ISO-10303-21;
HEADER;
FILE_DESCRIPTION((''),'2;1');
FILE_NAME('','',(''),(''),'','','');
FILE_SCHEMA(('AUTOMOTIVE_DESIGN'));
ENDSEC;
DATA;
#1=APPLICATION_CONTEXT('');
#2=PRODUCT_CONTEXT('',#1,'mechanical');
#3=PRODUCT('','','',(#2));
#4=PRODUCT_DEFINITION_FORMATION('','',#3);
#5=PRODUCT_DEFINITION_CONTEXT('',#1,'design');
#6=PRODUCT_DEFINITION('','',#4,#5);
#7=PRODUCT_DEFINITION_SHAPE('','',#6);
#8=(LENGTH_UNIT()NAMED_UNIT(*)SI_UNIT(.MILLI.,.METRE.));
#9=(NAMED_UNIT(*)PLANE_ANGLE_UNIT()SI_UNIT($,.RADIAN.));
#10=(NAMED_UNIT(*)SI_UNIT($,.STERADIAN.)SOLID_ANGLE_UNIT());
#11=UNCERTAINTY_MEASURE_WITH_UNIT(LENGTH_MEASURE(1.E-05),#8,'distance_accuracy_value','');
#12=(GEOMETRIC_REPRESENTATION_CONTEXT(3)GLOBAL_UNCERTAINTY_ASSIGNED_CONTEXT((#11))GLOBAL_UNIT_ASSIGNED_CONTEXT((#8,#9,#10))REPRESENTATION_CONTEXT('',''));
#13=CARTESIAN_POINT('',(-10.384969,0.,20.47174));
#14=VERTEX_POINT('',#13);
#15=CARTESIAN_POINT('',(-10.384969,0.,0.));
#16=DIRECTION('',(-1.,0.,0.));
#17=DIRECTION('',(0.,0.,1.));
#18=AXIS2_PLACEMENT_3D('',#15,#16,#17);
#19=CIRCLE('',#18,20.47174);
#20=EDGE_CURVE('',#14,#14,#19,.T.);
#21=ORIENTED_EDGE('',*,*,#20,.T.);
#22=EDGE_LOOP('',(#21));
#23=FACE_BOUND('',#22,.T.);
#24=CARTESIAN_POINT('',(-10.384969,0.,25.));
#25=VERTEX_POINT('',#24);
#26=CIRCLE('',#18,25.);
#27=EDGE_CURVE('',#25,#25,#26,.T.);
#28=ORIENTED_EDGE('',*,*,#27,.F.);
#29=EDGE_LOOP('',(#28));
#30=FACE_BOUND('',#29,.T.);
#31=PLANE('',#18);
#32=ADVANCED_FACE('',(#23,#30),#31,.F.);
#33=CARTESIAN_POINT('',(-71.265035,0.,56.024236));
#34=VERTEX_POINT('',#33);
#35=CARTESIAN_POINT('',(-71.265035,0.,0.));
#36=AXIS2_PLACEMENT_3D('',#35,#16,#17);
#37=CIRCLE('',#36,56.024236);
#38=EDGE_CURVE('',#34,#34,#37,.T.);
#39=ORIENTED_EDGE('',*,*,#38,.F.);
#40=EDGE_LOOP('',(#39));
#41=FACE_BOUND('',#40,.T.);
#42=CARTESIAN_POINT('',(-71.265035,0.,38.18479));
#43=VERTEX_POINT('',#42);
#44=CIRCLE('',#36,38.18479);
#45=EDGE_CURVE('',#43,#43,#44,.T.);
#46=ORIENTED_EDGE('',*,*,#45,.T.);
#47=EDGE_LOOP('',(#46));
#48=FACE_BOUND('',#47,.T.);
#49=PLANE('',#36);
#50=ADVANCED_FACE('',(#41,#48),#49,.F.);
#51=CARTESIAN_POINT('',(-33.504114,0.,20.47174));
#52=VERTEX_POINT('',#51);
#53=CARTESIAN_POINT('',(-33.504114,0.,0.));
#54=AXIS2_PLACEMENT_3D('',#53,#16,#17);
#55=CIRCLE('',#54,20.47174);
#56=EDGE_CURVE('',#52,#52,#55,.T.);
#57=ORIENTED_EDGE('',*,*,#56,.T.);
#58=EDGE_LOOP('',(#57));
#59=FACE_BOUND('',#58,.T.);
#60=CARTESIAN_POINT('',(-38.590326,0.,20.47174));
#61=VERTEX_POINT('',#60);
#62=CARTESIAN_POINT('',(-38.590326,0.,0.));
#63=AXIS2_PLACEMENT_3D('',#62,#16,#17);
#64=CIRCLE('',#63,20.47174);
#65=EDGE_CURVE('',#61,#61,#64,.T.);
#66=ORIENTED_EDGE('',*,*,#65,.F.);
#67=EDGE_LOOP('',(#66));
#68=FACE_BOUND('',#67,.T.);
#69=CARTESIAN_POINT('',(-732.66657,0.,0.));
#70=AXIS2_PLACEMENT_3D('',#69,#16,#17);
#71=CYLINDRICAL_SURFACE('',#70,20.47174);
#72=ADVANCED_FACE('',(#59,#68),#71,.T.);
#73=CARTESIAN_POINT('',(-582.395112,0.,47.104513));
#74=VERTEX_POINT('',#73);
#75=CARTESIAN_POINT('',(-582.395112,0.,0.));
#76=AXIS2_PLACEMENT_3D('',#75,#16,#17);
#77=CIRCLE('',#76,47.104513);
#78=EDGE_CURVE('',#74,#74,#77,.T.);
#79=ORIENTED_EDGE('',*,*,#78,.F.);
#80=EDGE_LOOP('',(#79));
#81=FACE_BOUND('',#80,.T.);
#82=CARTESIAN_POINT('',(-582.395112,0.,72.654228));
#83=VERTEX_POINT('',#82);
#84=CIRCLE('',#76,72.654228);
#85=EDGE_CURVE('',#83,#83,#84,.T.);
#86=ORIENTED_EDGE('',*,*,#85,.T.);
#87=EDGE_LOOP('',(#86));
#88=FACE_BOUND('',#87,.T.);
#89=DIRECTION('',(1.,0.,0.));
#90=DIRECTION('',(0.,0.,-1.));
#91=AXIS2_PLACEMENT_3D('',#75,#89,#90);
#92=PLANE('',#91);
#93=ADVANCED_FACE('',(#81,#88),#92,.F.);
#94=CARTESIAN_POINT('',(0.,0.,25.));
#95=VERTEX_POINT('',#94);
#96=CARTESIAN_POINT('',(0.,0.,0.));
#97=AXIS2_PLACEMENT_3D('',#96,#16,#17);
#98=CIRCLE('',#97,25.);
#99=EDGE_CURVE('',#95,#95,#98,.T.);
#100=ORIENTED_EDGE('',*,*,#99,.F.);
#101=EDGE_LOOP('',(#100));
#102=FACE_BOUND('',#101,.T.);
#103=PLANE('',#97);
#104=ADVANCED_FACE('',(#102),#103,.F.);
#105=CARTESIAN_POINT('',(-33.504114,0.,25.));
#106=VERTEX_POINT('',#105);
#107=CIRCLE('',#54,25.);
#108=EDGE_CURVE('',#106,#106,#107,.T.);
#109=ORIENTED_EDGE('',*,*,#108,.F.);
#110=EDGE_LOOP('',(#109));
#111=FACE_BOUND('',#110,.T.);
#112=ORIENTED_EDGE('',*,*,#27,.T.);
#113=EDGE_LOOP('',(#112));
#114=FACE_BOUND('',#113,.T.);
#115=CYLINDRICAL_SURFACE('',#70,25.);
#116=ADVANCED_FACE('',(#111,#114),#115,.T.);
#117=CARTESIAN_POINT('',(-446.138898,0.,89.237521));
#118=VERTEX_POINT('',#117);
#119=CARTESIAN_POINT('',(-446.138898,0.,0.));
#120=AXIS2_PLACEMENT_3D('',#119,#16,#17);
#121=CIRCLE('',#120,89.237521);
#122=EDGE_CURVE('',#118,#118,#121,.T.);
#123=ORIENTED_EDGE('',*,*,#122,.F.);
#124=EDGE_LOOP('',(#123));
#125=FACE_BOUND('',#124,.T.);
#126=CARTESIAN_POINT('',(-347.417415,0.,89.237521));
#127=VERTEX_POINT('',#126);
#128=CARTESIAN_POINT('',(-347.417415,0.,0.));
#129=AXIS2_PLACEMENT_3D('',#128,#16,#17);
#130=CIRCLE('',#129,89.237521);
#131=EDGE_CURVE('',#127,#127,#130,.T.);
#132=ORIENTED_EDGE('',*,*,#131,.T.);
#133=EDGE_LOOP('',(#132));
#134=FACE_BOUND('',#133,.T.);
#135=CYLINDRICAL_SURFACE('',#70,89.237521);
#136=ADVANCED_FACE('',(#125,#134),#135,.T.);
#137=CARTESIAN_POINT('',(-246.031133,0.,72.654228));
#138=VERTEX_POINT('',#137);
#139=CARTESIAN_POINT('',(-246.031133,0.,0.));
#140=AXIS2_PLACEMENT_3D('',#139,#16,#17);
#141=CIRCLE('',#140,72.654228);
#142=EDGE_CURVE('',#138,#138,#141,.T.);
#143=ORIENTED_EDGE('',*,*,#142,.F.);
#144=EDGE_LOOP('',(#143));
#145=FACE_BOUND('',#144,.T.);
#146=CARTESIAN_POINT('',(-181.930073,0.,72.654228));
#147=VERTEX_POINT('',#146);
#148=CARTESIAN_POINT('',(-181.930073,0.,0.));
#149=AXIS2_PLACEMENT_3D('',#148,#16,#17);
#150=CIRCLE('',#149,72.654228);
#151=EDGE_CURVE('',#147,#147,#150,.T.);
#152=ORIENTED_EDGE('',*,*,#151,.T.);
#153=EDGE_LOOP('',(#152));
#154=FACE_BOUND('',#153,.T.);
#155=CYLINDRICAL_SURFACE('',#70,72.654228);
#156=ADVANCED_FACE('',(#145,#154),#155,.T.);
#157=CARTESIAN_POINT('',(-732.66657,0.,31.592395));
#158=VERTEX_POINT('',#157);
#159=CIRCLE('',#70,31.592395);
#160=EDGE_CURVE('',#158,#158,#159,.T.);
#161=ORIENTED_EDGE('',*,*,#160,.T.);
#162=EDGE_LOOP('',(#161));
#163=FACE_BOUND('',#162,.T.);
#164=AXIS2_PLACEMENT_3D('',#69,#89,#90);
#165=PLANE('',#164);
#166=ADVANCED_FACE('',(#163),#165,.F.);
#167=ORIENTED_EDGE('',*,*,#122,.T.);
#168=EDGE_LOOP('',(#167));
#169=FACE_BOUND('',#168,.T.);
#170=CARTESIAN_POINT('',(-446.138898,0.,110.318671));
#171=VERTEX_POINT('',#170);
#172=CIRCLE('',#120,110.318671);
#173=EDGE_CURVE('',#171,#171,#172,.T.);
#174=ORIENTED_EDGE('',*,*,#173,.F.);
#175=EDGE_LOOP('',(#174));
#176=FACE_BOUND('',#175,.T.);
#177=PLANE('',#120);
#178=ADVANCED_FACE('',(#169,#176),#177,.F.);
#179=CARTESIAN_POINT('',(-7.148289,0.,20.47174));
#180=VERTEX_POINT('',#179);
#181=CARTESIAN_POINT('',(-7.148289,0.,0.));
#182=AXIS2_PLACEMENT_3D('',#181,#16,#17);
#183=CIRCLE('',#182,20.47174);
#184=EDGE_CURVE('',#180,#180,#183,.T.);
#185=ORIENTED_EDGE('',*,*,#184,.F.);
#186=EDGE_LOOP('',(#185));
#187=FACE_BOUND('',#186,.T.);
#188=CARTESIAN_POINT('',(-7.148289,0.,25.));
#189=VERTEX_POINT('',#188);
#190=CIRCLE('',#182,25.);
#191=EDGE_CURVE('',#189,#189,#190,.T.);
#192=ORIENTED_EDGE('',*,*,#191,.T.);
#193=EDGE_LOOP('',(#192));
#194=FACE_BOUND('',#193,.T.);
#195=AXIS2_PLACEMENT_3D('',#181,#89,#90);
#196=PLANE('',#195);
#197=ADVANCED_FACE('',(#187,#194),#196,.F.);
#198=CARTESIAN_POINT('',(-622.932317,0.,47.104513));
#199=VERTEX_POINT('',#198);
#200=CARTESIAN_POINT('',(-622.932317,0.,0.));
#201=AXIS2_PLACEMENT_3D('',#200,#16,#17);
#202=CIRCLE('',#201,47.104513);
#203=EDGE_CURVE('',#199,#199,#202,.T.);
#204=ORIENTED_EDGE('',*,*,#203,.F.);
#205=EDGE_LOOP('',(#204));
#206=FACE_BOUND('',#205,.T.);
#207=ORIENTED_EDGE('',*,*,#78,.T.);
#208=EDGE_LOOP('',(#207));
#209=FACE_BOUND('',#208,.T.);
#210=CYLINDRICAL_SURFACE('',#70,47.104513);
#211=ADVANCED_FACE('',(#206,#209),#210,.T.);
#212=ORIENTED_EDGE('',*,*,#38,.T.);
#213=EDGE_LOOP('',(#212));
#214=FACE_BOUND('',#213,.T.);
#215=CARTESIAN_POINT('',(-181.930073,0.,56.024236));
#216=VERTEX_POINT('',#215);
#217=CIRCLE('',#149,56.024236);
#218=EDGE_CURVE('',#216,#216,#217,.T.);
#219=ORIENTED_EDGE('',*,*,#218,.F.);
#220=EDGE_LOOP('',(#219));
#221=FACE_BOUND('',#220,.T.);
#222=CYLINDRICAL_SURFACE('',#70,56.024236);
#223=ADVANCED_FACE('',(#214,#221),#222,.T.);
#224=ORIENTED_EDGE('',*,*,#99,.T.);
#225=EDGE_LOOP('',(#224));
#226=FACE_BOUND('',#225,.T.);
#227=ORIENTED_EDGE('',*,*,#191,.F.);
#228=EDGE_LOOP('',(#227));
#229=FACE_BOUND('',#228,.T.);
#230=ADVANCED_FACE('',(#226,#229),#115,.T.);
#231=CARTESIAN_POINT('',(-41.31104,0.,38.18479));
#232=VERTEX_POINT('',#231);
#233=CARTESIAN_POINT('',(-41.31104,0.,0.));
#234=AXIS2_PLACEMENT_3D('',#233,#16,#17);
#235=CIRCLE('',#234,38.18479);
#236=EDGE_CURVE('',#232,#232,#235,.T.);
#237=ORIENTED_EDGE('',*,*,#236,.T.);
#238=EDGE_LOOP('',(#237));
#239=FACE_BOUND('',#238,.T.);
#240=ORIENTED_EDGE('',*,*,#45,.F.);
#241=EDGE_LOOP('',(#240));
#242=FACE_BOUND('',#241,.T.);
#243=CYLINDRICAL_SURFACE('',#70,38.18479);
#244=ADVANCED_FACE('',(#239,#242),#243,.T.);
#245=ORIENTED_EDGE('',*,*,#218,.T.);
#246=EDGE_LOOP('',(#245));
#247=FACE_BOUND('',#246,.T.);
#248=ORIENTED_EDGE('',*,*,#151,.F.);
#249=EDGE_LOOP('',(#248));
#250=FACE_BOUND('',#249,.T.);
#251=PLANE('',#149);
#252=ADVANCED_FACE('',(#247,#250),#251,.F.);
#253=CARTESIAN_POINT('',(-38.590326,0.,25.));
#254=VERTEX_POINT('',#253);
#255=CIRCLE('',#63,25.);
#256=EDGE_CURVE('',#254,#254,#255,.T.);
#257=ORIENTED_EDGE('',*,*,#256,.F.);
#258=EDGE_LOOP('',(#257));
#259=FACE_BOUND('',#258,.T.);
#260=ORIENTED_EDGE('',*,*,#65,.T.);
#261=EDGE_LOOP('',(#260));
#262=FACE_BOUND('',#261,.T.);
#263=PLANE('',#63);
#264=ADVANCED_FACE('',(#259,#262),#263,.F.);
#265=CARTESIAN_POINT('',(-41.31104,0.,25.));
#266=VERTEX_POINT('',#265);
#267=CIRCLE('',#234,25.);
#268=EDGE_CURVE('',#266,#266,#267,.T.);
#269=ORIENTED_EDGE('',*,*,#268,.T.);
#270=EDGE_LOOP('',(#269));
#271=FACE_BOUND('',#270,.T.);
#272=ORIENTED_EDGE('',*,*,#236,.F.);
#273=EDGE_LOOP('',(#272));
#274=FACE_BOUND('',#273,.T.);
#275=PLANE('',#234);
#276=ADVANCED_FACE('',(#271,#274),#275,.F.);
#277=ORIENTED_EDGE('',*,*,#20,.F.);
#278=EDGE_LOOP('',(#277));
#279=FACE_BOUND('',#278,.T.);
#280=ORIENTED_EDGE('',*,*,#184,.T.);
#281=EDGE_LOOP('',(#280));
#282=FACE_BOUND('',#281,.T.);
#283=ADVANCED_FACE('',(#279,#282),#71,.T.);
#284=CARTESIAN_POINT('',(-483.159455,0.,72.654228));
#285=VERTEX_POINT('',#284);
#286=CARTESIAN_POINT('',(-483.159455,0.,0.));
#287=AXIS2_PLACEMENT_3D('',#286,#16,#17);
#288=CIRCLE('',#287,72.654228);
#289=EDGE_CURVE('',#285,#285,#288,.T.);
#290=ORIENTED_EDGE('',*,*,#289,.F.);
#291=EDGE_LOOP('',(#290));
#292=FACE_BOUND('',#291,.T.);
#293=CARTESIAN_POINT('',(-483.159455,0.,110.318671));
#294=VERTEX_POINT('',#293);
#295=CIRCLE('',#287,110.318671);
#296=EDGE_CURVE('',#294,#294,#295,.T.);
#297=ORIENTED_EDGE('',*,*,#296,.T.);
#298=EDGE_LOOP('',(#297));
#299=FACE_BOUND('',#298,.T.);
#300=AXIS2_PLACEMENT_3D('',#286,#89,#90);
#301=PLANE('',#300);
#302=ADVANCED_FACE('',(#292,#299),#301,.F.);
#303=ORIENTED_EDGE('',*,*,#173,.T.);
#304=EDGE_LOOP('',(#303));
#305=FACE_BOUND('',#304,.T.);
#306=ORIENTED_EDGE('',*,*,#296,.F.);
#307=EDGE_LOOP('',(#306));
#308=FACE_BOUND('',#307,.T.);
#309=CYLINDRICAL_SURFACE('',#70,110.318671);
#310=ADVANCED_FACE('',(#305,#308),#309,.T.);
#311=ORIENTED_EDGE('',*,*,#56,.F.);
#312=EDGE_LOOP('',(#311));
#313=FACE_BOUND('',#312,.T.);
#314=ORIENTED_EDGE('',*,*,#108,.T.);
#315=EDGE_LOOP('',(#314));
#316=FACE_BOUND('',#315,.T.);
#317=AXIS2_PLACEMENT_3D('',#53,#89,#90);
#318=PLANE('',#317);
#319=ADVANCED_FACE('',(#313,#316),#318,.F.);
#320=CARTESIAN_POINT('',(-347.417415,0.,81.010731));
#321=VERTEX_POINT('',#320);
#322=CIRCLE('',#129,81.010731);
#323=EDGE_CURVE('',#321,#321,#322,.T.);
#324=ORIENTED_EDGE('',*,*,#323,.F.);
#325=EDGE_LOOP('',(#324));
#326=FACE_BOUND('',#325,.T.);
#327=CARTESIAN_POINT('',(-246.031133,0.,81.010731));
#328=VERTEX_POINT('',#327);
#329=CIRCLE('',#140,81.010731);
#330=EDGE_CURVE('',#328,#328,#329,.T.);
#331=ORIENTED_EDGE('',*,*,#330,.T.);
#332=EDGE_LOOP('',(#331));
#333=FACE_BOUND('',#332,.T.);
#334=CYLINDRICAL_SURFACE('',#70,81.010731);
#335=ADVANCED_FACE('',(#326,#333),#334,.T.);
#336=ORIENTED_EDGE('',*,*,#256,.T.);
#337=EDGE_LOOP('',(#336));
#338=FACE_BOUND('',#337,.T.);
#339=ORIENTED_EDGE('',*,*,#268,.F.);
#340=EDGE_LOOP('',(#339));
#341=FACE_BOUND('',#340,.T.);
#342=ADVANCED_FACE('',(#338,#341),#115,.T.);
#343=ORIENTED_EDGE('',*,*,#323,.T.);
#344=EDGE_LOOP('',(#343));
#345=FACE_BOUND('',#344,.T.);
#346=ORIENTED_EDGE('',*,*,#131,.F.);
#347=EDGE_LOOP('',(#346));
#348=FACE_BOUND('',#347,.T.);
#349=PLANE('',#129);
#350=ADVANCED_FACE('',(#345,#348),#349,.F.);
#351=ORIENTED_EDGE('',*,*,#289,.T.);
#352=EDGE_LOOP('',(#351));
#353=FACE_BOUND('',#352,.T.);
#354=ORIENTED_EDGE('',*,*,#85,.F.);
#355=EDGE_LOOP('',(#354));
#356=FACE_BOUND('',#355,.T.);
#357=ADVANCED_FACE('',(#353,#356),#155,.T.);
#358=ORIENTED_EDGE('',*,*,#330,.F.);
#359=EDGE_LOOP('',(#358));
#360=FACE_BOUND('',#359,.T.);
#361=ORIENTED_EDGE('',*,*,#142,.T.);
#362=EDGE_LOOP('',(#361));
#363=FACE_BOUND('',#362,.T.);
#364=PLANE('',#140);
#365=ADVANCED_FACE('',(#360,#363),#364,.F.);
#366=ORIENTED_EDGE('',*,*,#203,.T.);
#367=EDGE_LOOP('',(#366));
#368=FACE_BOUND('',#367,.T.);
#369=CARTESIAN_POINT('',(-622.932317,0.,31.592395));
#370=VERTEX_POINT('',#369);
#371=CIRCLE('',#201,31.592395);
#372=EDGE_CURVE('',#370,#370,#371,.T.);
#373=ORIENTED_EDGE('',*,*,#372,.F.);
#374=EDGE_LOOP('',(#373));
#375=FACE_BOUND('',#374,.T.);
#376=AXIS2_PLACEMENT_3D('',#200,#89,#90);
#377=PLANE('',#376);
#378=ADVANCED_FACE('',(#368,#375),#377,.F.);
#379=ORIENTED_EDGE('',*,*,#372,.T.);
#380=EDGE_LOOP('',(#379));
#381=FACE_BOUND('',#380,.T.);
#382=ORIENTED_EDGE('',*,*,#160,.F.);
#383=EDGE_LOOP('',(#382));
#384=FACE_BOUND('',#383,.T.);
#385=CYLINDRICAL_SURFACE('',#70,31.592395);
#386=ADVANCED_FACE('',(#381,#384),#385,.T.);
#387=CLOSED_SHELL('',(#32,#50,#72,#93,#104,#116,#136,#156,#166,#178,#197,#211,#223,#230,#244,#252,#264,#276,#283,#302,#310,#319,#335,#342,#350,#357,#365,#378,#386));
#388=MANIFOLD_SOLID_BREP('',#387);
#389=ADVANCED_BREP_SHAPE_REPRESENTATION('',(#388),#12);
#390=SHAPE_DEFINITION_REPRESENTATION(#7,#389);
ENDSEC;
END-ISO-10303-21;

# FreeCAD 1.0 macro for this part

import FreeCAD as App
import Part
import Sketcher


def add_polygon(sketch, points):
    """Adds a closed chain of lines whose ends are joined by coincident constraints."""
    first, n = sketch.GeometryCount, len(points)
    for a, b in zip(points, points[1:] + points[:1]):
        sketch.addGeometry(Part.LineSegment(App.Vector(*a, 0), App.Vector(*b, 0)), False)
    for i in range(n):
        sketch.addConstraint(Sketcher.Constraint("Coincident", first + i, 2, first + (i + 1) % n, 1))

doc = App.newDocument("Part")
body = doc.addObject("PartDesign::Body", "Body")

# Sketch on XY plane
sketch1 = doc.addObject("Sketcher::SketchObject", "Sketch")
body.addObject(sketch1)
sketch1.AttachmentSupport = (doc.XY_Plane, [""])
sketch1.MapMode = "FlatFace"
add_polygon(sketch1, [(-622.9, 31.6), (-732.7, 31.6), (-732.7, 0), (0, 0), (0, 25), (-7.1, 25), (-7.1, 20.5), (-10.4, 20.5), (-10.4, 25), (-33.5, 25), (-33.5, 20.5), (-38.6, 20.5), (-38.6, 25), (-41.3, 25), (-41.3, 38.2), (-71.3, 38.2), (-71.3, 56), (-181.9, 56), (-181.9, 72.7), (-246, 72.7), (-246, 81), (-347.4, 81), (-347.4, 89.2), (-446.1, 89.2), (-446.1, 110.3), (-483.2, 110.3), (-483.2, 72.7), (-582.4, 72.7), (-582.4, 47.1), (-622.9, 47.1)])  # lines 0-29
sketch1.addConstraint([
    Sketcher.Constraint("Horizontal", 0),
    Sketcher.Constraint("Vertical", 1),
    Sketcher.Constraint("Horizontal", 2),
    Sketcher.Constraint("Vertical", 3),
    Sketcher.Constraint("Horizontal", 4),
    Sketcher.Constraint("Vertical", 5),
    Sketcher.Constraint("Horizontal", 6),
    Sketcher.Constraint("Vertical", 7),
    Sketcher.Constraint("Horizontal", 8),
    Sketcher.Constraint("Vertical", 9),
    Sketcher.Constraint("Horizontal", 10),
    Sketcher.Constraint("Vertical", 11),
    Sketcher.Constraint("Horizontal", 12),
    Sketcher.Constraint("Vertical", 13),
    Sketcher.Constraint("Horizontal", 14),
    Sketcher.Constraint("Vertical", 15),
    Sketcher.Constraint("Horizontal", 16),
    Sketcher.Constraint("Vertical", 17),
    Sketcher.Constraint("Horizontal", 18),
    Sketcher.Constraint("Vertical", 19),
    Sketcher.Constraint("Horizontal", 20),
    Sketcher.Constraint("Vertical", 21),
    Sketcher.Constraint("Horizontal", 22),
    Sketcher.Constraint("Vertical", 23),
    Sketcher.Constraint("Horizontal", 24),
    Sketcher.Constraint("Vertical", 25),
    Sketcher.Constraint("Horizontal", 26),
    Sketcher.Constraint("Vertical", 27),
    Sketcher.Constraint("Horizontal", 28),
    Sketcher.Constraint("Vertical", 29),
    Sketcher.Constraint("Coincident", 2, 2, -1, 1),
    Sketcher.Constraint("Horizontal", 4, 2, 7, 2),
    Sketcher.Constraint("Horizontal", 6, 2, 9, 2),
    Sketcher.Constraint("Horizontal", 8, 2, 11, 2),
    Sketcher.Constraint("Horizontal", 18, 2, 25, 2),
    Sketcher.Constraint("DistanceY", 3, 1, 3, 2, 25.0),
    Sketcher.Constraint("DistanceX", 2, 1, 2, 2, 732.66657),
    Sketcher.Constraint("DistanceX", 4, 2, 4, 1, 7.148289),
    Sketcher.Constraint("DistanceX", 6, 2, 6, 1, 3.23668),
    Sketcher.Constraint("DistanceX", 10, 2, 10, 1, 5.086212),
    Sketcher.Constraint("DistanceX", 18, 2, 18, 1, 64.10106),
    Sketcher.Constraint("DistanceY", 5, 2, 5, 1, 4.52826),
    Sketcher.Constraint("DistanceY", 13, 1, 13, 2, 13.18479),
    Sketcher.Constraint("DistanceY", 21, 1, 21, 2, 8.22679),
    Sketcher.Constraint("DistanceY", 23, 1, 23, 2, 21.08115),
    Sketcher.Constraint("DistanceX", 22, 2, -1, 1, 446.138898),
    Sketcher.Constraint("DistanceX", 0, 2, 0, 1, 109.734252),
    Sketcher.Constraint("DistanceX", 8, 2, 8, 1, 23.119145),
    Sketcher.Constraint("DistanceX", 12, 2, 12, 1, 2.720714),
    Sketcher.Constraint("DistanceX", 14, 2, 14, 1, 29.953995),
    Sketcher.Constraint("DistanceX", 16, 2, 16, 1, 110.665038),
    Sketcher.Constraint("DistanceX", 20, 2, 20, 1, 101.386282),
    Sketcher.Constraint("DistanceX", 24, 2, 24, 1, 37.020556),
    Sketcher.Constraint("DistanceX", 26, 2, 26, 1, 99.235658),
    Sketcher.Constraint("DistanceY", 1, 2, 1, 1, 31.592395),
    Sketcher.Constraint("DistanceY", 15, 1, 15, 2, 17.839446),
    Sketcher.Constraint("DistanceY", 17, 1, 17, 2, 16.629992),
    Sketcher.Constraint("DistanceY", 19, 1, 19, 2, 8.356503),
    Sketcher.Constraint("DistanceY", 27, 2, 27, 1, 25.549715),
])
revolution = doc.addObject("PartDesign::Revolution", "Revolution")
body.addObject(revolution)
revolution.Profile = sketch1
revolution.ReferenceAxis = (sketch1, ["H_Axis"])
revolution.Angle = 360

doc.recompute()
